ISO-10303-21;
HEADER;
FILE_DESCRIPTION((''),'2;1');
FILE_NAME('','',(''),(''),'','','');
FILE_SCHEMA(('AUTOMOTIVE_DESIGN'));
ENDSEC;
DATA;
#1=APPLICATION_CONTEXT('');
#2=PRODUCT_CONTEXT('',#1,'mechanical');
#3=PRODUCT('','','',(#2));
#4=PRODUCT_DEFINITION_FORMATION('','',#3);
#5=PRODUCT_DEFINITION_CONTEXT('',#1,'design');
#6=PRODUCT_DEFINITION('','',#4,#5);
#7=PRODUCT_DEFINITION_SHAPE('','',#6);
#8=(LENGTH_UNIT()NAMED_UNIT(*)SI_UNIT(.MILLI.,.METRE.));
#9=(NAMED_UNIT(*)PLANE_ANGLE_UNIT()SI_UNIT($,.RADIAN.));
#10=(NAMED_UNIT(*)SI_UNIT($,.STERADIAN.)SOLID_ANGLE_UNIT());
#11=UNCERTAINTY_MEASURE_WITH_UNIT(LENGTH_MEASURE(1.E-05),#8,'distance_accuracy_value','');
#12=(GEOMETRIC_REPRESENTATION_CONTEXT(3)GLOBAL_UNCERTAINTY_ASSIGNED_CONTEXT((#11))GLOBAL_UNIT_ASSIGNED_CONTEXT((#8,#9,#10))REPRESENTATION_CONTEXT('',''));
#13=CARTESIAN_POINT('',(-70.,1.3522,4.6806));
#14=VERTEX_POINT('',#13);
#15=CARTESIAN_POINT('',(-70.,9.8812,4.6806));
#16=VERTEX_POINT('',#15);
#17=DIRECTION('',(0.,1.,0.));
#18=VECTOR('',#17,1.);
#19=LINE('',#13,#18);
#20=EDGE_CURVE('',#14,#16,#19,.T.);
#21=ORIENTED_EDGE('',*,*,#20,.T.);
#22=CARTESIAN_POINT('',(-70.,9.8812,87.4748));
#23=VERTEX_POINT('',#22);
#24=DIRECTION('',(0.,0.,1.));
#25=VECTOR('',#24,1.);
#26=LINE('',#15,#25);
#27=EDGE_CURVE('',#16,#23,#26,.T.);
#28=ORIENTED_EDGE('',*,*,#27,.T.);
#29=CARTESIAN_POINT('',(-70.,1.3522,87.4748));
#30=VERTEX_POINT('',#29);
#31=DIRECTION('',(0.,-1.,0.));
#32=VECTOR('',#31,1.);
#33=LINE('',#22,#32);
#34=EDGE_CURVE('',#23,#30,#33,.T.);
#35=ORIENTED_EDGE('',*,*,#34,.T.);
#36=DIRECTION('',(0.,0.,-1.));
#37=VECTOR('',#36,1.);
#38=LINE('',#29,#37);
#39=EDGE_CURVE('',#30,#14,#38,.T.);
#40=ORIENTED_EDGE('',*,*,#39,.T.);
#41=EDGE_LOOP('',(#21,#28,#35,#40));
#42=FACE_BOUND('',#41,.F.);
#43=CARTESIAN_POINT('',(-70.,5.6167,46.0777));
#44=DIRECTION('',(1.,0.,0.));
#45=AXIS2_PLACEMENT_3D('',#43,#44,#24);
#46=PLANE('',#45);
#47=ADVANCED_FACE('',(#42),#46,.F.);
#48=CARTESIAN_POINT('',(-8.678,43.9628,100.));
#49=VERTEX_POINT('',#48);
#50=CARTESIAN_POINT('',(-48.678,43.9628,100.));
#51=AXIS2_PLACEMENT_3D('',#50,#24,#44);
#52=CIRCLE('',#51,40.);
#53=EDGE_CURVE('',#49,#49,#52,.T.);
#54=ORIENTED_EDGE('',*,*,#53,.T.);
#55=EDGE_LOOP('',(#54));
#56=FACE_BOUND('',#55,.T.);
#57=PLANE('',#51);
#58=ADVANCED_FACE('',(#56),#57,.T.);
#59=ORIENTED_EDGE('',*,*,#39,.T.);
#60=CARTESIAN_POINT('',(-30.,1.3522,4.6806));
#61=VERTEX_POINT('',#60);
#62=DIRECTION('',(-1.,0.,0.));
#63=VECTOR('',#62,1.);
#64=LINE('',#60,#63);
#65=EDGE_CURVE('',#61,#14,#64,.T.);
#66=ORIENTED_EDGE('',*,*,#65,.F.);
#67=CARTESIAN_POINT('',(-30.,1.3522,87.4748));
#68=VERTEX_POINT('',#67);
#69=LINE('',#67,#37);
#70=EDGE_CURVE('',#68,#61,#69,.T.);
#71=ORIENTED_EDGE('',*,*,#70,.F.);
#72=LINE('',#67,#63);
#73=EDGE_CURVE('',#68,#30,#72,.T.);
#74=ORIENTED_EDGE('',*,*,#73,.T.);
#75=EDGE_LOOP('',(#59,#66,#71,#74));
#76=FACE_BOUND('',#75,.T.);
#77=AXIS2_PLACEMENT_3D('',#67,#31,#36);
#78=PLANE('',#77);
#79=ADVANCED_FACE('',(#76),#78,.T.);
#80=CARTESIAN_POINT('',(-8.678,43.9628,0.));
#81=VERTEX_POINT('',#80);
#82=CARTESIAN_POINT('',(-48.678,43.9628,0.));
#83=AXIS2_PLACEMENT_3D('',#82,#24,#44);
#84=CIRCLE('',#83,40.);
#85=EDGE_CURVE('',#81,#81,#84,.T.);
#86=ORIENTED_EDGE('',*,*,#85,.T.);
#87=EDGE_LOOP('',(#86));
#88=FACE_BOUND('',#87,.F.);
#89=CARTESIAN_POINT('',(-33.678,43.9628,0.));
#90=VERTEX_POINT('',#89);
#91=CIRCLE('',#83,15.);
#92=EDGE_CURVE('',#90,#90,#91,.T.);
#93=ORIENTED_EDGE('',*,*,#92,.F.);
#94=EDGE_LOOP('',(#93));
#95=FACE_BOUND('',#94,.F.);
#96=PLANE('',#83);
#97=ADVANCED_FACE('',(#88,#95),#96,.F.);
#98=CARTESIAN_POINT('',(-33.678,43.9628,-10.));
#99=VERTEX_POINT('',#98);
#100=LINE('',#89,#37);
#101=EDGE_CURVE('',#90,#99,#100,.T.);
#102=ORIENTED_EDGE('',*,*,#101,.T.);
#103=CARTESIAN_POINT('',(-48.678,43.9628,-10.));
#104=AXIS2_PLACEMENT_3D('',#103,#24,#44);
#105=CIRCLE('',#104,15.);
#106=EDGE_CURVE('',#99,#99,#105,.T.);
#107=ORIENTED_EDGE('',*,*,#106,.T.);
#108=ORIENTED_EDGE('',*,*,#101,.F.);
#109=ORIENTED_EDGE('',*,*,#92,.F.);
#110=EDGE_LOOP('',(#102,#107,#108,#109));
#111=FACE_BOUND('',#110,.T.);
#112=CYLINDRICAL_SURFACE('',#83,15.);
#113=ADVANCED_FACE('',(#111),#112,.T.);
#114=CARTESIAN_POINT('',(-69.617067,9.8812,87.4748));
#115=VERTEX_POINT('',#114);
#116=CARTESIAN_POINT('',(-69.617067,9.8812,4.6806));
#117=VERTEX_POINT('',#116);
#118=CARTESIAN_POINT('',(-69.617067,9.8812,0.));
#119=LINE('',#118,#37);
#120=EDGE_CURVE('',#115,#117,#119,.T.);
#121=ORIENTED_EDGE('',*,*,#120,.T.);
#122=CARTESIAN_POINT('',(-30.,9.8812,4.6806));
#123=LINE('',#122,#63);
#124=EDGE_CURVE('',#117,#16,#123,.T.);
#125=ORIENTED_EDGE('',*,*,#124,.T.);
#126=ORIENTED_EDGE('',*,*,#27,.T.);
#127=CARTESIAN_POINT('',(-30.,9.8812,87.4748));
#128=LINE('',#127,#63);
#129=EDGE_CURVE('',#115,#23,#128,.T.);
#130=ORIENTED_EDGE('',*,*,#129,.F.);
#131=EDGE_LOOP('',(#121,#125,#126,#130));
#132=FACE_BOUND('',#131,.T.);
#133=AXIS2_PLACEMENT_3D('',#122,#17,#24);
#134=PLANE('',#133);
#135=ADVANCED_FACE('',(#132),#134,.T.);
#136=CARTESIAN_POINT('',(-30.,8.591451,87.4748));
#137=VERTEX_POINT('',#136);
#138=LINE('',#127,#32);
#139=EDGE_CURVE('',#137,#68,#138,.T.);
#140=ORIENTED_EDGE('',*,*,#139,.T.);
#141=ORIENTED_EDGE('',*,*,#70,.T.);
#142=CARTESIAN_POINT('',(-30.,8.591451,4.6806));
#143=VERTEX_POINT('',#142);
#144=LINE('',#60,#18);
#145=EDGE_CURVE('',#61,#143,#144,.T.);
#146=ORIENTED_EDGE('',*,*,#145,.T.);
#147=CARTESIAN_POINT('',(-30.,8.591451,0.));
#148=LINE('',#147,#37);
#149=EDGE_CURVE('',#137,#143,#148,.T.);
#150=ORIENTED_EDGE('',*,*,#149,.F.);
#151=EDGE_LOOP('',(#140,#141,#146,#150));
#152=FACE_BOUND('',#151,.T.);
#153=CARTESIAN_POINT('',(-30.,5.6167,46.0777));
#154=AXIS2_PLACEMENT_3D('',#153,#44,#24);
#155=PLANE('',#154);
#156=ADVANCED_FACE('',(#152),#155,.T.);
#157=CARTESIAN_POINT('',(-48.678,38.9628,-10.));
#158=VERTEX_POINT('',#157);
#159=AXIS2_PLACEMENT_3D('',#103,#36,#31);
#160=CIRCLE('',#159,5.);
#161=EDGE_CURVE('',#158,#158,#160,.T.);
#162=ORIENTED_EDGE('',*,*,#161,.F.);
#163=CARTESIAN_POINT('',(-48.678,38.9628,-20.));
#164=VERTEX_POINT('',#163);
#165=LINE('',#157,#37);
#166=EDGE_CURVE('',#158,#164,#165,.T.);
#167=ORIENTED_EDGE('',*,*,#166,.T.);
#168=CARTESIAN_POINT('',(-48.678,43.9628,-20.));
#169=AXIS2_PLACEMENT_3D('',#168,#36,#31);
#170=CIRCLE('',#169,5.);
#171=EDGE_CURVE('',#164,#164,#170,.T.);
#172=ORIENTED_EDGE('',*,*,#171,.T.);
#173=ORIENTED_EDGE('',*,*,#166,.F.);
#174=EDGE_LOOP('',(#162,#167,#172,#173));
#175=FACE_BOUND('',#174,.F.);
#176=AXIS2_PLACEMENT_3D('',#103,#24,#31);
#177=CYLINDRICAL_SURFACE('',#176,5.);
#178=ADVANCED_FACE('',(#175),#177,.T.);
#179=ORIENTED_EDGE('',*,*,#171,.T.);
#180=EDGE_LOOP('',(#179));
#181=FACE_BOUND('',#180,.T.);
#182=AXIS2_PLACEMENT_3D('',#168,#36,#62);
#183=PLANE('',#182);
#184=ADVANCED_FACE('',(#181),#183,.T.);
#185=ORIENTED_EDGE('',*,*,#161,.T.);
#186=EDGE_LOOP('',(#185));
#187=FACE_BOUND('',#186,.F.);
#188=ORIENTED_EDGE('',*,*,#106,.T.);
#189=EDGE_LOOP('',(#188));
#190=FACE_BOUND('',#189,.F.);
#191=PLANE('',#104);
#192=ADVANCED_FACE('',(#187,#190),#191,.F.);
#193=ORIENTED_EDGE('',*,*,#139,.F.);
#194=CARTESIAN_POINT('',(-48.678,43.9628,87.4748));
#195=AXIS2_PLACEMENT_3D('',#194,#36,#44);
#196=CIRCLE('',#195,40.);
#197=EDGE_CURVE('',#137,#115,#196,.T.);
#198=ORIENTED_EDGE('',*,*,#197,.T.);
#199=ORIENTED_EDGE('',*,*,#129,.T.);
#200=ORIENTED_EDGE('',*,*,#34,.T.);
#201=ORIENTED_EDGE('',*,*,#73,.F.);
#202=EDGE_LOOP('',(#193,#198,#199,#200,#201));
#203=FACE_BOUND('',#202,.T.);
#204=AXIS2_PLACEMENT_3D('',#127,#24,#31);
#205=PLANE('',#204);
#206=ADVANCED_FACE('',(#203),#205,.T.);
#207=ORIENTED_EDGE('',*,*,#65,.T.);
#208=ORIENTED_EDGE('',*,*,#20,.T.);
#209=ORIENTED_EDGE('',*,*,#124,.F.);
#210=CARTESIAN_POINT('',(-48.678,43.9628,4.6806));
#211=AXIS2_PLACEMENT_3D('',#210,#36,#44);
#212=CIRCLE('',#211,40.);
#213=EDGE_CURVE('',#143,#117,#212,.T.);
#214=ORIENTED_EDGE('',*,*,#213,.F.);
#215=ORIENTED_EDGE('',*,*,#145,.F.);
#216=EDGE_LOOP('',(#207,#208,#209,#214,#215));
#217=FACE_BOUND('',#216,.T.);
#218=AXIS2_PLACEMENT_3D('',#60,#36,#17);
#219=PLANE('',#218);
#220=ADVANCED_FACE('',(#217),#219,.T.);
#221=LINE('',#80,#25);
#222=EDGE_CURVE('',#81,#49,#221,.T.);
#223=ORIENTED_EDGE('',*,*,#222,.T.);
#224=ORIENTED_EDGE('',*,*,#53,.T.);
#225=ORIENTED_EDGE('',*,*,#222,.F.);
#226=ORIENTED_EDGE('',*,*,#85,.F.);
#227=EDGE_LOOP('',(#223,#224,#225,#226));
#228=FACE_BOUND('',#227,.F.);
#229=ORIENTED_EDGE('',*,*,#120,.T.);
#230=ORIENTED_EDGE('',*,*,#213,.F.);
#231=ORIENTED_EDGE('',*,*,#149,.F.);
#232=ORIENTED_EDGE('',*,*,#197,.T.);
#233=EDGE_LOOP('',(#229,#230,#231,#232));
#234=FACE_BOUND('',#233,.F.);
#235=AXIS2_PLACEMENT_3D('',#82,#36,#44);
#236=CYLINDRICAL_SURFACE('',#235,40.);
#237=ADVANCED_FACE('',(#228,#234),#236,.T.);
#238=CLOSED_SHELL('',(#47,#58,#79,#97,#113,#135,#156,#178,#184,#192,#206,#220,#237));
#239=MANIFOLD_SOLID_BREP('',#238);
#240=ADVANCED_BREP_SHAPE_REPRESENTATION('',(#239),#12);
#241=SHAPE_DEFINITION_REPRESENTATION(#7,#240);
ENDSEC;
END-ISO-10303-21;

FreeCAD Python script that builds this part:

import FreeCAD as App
import Part
import Sketcher

V = App.Vector
Q = App.Units.Quantity

doc = App.newDocument("Part")
body = doc.addObject("PartDesign::Body", "Body")

sketch1 = doc.addObject("Sketcher::SketchObject", "Sketch")
body.addObject(sketch1)
sketch1.AttachmentSupport = (doc.XY_Plane, [""])
sketch1.MapMode = "FlatFace"
sketch1.addGeometry(Part.Circle(V(-49, 44, 0), V(0, 0, 1), 40), False)
sketch1.addConstraint(Sketcher.Constraint("Diameter", 0, Q("3.1496 in")))
sketch1.addConstraint(Sketcher.Constraint("DistanceX", 0, 3, -1, 1, 48.678))
sketch1.addConstraint(Sketcher.Constraint("DistanceY", -1, 1, 0, 3, 43.9628))
pad1 = doc.addObject("PartDesign::Pad", "Pad")
body.addObject(pad1)
pad1.Profile = sketch1
pad1.Length = Q("3.9370079 in")

sketch2 = doc.addObject("Sketcher::SketchObject", "Sketch001")
body.addObject(sketch2)
sketch2.AttachmentSupport = (doc.XY_Plane, [""])
sketch2.MapMode = "FlatFace"
sketch2.addGeometry(Part.Circle(V(-49, 44, 0), V(0, 0, 1), 15), False)
sketch2.addConstraint(Sketcher.Constraint("Diameter", 0, Q("1.1811 in")))
sketch2.addConstraint(Sketcher.Constraint("DistanceX", 0, 3, -1, 1, 48.678))
sketch2.addConstraint(Sketcher.Constraint("DistanceY", -1, 1, 0, 3, 43.9628))
pad2 = doc.addObject("PartDesign::Pad", "Pad001")
body.addObject(pad2)
pad2.Profile = sketch2
pad2.Length = Q("0.3937008 in")
pad2.Reversed = True

sketch3 = doc.addObject("Sketcher::SketchObject", "Sketch002")
body.addObject(sketch3)
sketch3.AttachmentSupport = (doc.XY_Plane, [""])
sketch3.MapMode = "FlatFace"
sketch3.AttachmentOffset = App.Placement(V(0, 0, -0.3937008 * 25.4), App.Rotation())
sketch3.addGeometry(Part.Circle(V(-49, 44, 0), V(0, 0, 1), 5), False)
sketch3.addConstraint(Sketcher.Constraint("Diameter", 0, Q("0.3937 in")))
sketch3.addConstraint(Sketcher.Constraint("DistanceX", 0, 3, -1, 1, 48.678))
sketch3.addConstraint(Sketcher.Constraint("DistanceY", -1, 1, 0, 3, 43.9628))
pad3 = doc.addObject("PartDesign::Pad", "Pad002")
body.addObject(pad3)
pad3.Profile = sketch3
pad3.Length = Q("0.3937008 in")
pad3.Reversed = True

sketch4 = doc.addObject("Sketcher::SketchObject", "Sketch003")
body.addObject(sketch4)
sketch4.AttachmentSupport = (doc.YZ_Plane, [""])
sketch4.MapMode = "FlatFace"
sketch4.AttachmentOffset = App.Placement(V(0, 0, -1.1811024 * 25.4), App.Rotation())
sketch4.addGeometry(Part.LineSegment(V(10, 87, 0), V(1, 87, 0)), False)
sketch4.addGeometry(Part.LineSegment(V(1, 87, 0), V(1, 5, 0)), False)
sketch4.addGeometry(Part.LineSegment(V(1, 5, 0), V(10, 5, 0)), False)
sketch4.addGeometry(Part.LineSegment(V(10, 5, 0), V(10, 87, 0)), False)
sketch4.addConstraint(Sketcher.Constraint("Coincident", 0, 2, 1, 1))
sketch4.addConstraint(Sketcher.Constraint("Coincident", 1, 2, 2, 1))
sketch4.addConstraint(Sketcher.Constraint("Coincident", 2, 2, 3, 1))
sketch4.addConstraint(Sketcher.Constraint("Coincident", 3, 2, 0, 1))
sketch4.addConstraint(Sketcher.Constraint("Horizontal", 0))
sketch4.addConstraint(Sketcher.Constraint("Vertical", 1))
sketch4.addConstraint(Sketcher.Constraint("Horizontal", 2))
sketch4.addConstraint(Sketcher.Constraint("Vertical", 3))
sketch4.addConstraint(Sketcher.Constraint("DistanceX", 0, 2, 0, 1, 8.529))
sketch4.addConstraint(Sketcher.Constraint("DistanceY", 1, 2, 1, 1, 82.7942))
sketch4.addConstraint(Sketcher.Constraint("DistanceY", -1, 1, 0, 2, Q("3.4439 in")))
sketch4.addConstraint(Sketcher.Constraint("DistanceX", -1, 1, 0, 2, 1.3522))
pad4 = doc.addObject("PartDesign::Pad", "Pad003")
body.addObject(pad4)
pad4.Profile = sketch4
pad4.Length = Q("1.5748031 in")
pad4.Reversed = True

doc.recompute()
